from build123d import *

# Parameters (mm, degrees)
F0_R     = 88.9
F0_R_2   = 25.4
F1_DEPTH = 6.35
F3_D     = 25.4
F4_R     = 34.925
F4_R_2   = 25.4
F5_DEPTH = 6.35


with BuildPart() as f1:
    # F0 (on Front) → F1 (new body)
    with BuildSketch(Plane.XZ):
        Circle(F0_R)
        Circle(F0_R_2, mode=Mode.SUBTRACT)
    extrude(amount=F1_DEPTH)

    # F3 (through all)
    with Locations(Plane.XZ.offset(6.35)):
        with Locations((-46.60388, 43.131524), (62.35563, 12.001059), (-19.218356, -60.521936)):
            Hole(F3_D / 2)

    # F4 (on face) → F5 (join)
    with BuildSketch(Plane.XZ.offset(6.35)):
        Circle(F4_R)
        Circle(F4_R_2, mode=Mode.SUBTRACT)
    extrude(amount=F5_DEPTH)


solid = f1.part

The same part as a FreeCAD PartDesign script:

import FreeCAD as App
import Part
import Sketcher
from FreeCAD import Vector
Q = App.Units.Quantity

doc = App.newDocument("Part")
body = doc.addObject("PartDesign::Body", "Body")

# Sketch on XZ plane
sketch1 = doc.addObject("Sketcher::SketchObject", "Sketch")
body.addObject(sketch1)
sketch1.AttachmentSupport = (doc.XZ_Plane, [""])
sketch1.MapMode = "FlatFace"
sketch1.addGeometry([
    Part.Circle(Vector(0, 0, 0), Vector(0, 0, 1), 88.9),
    Part.Circle(Vector(0, 0, 0), Vector(0, 0, 1), 25.4),
], False)
sketch1.addConstraint([
    Sketcher.Constraint("Coincident", 0, 3, -1, 1),
    Sketcher.Constraint("Coincident", 1, 3, -1, 1),
    Sketcher.Constraint("Diameter", 0, Q("7 in")),
    Sketcher.Constraint("Diameter", 1, Q("2 in")),
])
pad1 = doc.addObject("PartDesign::Pad", "Pad")
body.addObject(pad1)
pad1.Profile = sketch1
pad1.Length = Q("0.25 in")

# Sketch on XZ plane
sketch2 = doc.addObject("Sketcher::SketchObject", "Sketch001")
body.addObject(sketch2)
sketch2.AttachmentSupport = (doc.XZ_Plane, [""])
sketch2.MapMode = "FlatFace"
sketch2.AttachmentOffset = App.Placement(Vector(0, 0, 0.25 * 25.4), App.Rotation())
sketch2.addGeometry([
    Part.Circle(Vector(-46.60388, 43.131524, 0), Vector(0, 0, 1), 12.7),
    Part.Circle(Vector(62.35563, 12.001059, 0), Vector(0, 0, 1), 12.7),
    Part.Circle(Vector(-19.218356, -60.521936, 0), Vector(0, 0, 1), 12.7),
], False)
sketch2.addConstraint([
    Sketcher.Constraint("Equal", 0, 1),
    Sketcher.Constraint("Equal", 1, 2),
    Sketcher.Constraint("Diameter", 0, Q("1 in")),
    Sketcher.Constraint("DistanceX", 0, 3, -1, 1, 46.60388),
    Sketcher.Constraint("DistanceX", -1, 1, 1, 3, 62.35563),
    Sketcher.Constraint("DistanceY", -1, 1, 1, 3, 12.001059),
    Sketcher.Constraint("DistanceY", 2, 3, 0, 3, 103.65346),
    Sketcher.Constraint("DistanceY", -1, 1, 0, 3, 43.131524),
    Sketcher.Constraint("DistanceX", 2, 3, -1, 1, 19.218356),
])
doc.recompute()
hole = doc.addObject("PartDesign::Hole", "Hole")
body.addObject(hole)
hole.Profile = sketch2
hole.ThreadType = "None"
hole.Diameter = Q("1 in")
hole.DepthType = "ThroughAll"

# Sketch on XZ plane
sketch3 = doc.addObject("Sketcher::SketchObject", "Sketch002")
body.addObject(sketch3)
sketch3.AttachmentSupport = (doc.XZ_Plane, [""])
sketch3.MapMode = "FlatFace"
sketch3.AttachmentOffset = App.Placement(Vector(0, 0, 0.25 * 25.4), App.Rotation())
sketch3.addGeometry([
    Part.Circle(Vector(0, 0, 0), Vector(0, 0, 1), 34.925),
    Part.Circle(Vector(0, 0, 0), Vector(0, 0, 1), 25.4),
], False)
sketch3.addConstraint([
    Sketcher.Constraint("Coincident", 0, 3, -1, 1),
    Sketcher.Constraint("Coincident", 1, 3, -1, 1),
    Sketcher.Constraint("Diameter", 1, Q("2 in")),
    Sketcher.Constraint("Diameter", 0, Q("2.75 in")),
])
pad2 = doc.addObject("PartDesign::Pad", "Pad001")
body.addObject(pad2)
pad2.Profile = sketch3
pad2.Length = Q("0.25 in")

doc.recompute()
